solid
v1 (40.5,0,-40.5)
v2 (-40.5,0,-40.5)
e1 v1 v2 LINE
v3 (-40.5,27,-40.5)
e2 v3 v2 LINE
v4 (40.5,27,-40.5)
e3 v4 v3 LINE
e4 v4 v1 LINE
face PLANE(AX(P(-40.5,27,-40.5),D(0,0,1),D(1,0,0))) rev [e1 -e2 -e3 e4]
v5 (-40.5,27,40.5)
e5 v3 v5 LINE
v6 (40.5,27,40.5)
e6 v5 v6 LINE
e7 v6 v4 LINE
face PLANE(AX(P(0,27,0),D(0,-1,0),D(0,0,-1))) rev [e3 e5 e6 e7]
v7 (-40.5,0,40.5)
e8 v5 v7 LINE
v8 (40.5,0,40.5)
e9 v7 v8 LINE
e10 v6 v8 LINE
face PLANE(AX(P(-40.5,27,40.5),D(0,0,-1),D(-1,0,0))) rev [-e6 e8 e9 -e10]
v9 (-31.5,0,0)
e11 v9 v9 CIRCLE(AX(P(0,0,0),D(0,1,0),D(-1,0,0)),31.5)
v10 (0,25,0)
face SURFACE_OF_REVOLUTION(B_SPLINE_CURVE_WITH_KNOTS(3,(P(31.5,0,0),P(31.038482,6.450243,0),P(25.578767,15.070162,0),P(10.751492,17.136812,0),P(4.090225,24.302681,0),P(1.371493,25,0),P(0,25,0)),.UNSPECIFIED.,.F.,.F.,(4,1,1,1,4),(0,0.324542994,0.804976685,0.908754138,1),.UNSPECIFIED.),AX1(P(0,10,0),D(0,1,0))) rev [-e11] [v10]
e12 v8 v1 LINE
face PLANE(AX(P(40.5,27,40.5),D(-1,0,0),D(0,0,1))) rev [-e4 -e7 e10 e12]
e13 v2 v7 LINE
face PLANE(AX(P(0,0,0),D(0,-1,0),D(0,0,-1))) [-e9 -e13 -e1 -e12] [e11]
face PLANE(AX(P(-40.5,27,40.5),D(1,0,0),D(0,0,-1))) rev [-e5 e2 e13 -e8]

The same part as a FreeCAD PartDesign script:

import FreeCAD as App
import Part
import Sketcher
Q = App.Units.Quantity


def add_polygon(sketch, points):
    """Adds a closed chain of lines whose ends are joined by coincident constraints."""
    first, n = sketch.GeometryCount, len(points)
    for a, b in zip(points, points[1:] + points[:1]):
        sketch.addGeometry(Part.LineSegment(App.Vector(*a, 0), App.Vector(*b, 0)), False)
    for i in range(n):
        sketch.addConstraint(Sketcher.Constraint("Coincident", first + i, 2, first + (i + 1) % n, 1))

doc = App.newDocument("Part")
body = doc.addObject("PartDesign::Body", "Body")

# Sketch on XZ plane
sketch1 = body.newObject("Sketcher::SketchObject", "Sketch")
sketch1.AttachmentSupport = (doc.getObject("XZ_Plane"), [""])
sketch1.MapMode = "FlatFace"
add_polygon(sketch1, [(-40.5, -40.5), (-40.5, 40.5), (40.5, 40.5), (40.5, -40.5)])  # lines 0-3
sketch1.addConstraint([
    Sketcher.Constraint("Vertical", 0),
    Sketcher.Constraint("Horizontal", 1),
    Sketcher.Constraint("Vertical", 2),
    Sketcher.Constraint("Horizontal", 3),
    Sketcher.Constraint("Symmetric", 0, 2, 2, 2, -1, 1),
    Sketcher.Constraint("Equal", 3, 0),
    Sketcher.Constraint("DistanceX", 1, 1, 1, 2, Q("81 mm")),
])
pad1 = body.newObject("PartDesign::Pad", "Pad")
pad1.Profile = sketch1
pad1.Length = 27
pad1.Reversed = True

# Sketch on XY plane
sketch2 = body.newObject("Sketcher::SketchObject", "Sketch001")
sketch2.AttachmentSupport = (doc.getObject("XY_Plane"), [""])
sketch2.MapMode = "FlatFace"
sketch2.addGeometry([
    Part.LineSegment(App.Vector(0, 25, 0), App.Vector(0, -10, 0)),
    Part.LineSegment(App.Vector(0, -10, 0), App.Vector(31.5, -10, 0)),
    Part.LineSegment(App.Vector(31.5, -10, 0), App.Vector(31.5, 0, 0)),
    Part.BSplineCurve([App.Vector(0, 25, 0), App.Vector(1.371493, 25, 0), App.Vector(4.090225, 24.302681, 0), App.Vector(10.751492, 17.136812, 0), App.Vector(25.578767, 15.070162, 0), App.Vector(31.038482, 6.450243, 0), App.Vector(31.5, 0, 0)], [4, 1, 1, 1, 4], [0, 0.091245862, 0.195023315, 0.675457006, 1], False, 3, [1, 1, 1, 1, 1, 1, 1], False),
], False)
sketch2.addConstraint([
    Sketcher.Constraint("Block", 3),
    Sketcher.Constraint("Coincident", 0, 2, 1, 1),
    Sketcher.Constraint("Coincident", 1, 2, 2, 1),
    Sketcher.Constraint("Coincident", 2, 2, 3, 2),
    Sketcher.Constraint("Coincident", 3, 1, 0, 1),
    Sketcher.Constraint("Vertical", 0),
    Sketcher.Constraint("Horizontal", 1),
    Sketcher.Constraint("Vertical", 2),
    Sketcher.Constraint("DistanceY", 0, 2, 0, 1, Q("35 mm")),
])
groove = body.newObject("PartDesign::Groove", "Groove")
groove.Profile = sketch2
groove.ReferenceAxis = (sketch2, ["V_Axis"])
groove.Angle = 360

doc.recompute()
